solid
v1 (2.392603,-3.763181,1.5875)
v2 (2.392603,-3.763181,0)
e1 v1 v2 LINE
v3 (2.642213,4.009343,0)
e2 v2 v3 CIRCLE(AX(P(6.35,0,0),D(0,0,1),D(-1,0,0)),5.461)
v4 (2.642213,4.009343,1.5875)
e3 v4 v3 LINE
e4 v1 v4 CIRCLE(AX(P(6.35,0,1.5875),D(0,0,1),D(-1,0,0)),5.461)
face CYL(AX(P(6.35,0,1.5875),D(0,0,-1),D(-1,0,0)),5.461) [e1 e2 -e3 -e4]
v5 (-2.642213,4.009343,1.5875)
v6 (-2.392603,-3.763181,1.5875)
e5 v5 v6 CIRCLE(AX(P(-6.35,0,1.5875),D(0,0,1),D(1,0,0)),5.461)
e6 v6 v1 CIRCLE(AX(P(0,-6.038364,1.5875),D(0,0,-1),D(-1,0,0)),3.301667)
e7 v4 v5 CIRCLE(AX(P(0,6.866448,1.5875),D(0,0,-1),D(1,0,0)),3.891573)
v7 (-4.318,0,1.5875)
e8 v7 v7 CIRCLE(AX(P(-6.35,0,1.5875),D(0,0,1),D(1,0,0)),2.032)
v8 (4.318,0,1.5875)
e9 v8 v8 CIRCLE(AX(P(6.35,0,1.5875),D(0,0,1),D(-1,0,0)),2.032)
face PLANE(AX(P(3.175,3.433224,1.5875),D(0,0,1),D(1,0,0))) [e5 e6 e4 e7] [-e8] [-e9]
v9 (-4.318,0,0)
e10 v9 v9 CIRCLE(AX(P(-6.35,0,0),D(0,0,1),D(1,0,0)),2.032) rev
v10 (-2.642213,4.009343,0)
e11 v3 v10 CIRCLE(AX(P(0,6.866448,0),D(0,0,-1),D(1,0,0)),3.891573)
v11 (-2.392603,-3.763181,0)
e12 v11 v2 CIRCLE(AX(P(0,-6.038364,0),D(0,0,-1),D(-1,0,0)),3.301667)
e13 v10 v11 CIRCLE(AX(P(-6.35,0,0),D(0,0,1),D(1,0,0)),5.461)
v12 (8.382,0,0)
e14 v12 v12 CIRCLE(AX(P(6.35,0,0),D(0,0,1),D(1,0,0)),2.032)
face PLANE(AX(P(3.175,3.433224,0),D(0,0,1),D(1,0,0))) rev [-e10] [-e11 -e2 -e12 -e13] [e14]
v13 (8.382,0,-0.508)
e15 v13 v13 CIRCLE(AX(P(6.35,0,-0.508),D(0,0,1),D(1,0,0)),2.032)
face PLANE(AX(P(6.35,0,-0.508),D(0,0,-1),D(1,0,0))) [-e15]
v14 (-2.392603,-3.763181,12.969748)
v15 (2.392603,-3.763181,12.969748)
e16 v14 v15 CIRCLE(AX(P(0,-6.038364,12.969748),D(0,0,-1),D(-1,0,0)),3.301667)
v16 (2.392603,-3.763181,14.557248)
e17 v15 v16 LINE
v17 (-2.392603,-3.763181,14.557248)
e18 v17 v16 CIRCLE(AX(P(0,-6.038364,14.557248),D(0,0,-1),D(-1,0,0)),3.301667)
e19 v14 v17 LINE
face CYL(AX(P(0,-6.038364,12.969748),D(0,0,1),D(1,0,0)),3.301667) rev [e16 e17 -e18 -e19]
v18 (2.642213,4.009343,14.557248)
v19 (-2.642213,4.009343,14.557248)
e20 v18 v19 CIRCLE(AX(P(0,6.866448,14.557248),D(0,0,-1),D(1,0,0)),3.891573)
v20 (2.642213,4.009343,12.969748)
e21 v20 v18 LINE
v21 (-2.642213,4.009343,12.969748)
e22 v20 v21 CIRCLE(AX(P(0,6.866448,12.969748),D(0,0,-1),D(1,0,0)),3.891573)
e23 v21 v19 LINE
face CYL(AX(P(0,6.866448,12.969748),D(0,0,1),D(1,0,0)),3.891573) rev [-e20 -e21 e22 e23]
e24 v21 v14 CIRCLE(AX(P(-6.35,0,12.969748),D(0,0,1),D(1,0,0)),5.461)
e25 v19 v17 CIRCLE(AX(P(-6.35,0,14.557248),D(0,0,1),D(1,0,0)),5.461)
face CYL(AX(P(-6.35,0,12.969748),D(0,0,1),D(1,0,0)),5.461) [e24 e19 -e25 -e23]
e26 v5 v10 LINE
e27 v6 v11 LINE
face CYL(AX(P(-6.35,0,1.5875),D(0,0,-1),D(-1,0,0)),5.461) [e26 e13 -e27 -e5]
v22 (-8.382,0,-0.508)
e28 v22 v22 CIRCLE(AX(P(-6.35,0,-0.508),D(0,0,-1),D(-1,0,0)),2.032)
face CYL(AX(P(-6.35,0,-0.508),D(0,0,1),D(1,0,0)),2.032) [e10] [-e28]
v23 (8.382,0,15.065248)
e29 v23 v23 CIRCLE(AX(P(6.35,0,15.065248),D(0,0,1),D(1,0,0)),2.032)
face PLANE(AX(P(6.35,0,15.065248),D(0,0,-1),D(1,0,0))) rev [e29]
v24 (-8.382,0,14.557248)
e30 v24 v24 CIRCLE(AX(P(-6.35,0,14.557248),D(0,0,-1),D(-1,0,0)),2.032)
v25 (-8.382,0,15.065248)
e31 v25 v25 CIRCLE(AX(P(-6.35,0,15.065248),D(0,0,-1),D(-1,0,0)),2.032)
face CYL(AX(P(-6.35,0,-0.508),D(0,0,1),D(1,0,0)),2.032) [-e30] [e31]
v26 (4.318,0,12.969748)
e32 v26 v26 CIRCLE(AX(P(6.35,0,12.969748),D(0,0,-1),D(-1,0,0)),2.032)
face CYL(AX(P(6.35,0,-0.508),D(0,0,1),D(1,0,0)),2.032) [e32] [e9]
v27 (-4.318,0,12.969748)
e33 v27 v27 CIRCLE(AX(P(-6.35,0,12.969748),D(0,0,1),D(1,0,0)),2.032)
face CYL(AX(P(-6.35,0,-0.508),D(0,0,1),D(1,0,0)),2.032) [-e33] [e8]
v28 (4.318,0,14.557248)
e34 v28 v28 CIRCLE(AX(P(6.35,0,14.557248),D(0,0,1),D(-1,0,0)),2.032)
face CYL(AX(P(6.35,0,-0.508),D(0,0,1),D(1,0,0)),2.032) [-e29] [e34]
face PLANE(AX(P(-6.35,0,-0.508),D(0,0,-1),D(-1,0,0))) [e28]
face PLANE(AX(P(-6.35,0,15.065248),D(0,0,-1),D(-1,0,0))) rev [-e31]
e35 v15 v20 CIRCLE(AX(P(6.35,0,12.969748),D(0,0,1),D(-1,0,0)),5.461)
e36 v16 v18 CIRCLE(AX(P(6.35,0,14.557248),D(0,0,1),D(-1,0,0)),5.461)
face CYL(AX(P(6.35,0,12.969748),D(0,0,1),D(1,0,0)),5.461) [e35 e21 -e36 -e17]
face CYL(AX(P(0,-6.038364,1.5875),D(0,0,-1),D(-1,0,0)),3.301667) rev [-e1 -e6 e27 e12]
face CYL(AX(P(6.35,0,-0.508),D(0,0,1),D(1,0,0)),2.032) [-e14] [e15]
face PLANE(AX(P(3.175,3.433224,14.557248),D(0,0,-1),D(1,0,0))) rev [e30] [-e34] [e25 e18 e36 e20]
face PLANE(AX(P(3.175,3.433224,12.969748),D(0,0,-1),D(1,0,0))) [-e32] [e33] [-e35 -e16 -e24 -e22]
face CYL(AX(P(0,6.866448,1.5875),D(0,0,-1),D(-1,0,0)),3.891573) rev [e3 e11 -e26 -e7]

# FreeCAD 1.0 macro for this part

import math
import FreeCAD as App
import Part
import Sketcher

V = App.Vector
Q = App.Units.Quantity

doc = App.newDocument("Part")
body = doc.addObject("PartDesign::Body", "Body")

# Sketch on XY plane
sketch1 = body.newObject("Sketcher::SketchObject", "Sketch")
sketch1.AttachmentSupport = (doc.getObject("XY_Plane"), [""])
sketch1.MapMode = "FlatFace"
sketch1.addGeometry([
    Part.ArcOfCircle(Part.Circle(V(-6.35, 0, 0), V(0, 0, 1), 5.461), math.radians(47.237762), math.radians(316.441002)),  # 0
    Part.ArcOfCircle(Part.Circle(V(0, -6.038364, 0), V(0, 0, 1), 3.301667), math.radians(43.558998), math.radians(136.441002)),  # 1
    Part.ArcOfCircle(Part.Circle(V(6.35, 0, 0), V(0, 0, 1), 5.461), math.radians(-136.441002), math.radians(132.762238)),  # 2
    Part.ArcOfCircle(Part.Circle(V(0, 6.866448, 0), V(0, 0, 1), 3.891573), math.radians(-132.762238), math.radians(-47.237762)),  # 3
    Part.Circle(V(-6.35, 0, 0), V(0, 0, 1), 2.032),  # 4
    Part.Circle(V(6.35, 0, 0), V(0, 0, 1), 2.032),  # 5
], False)
sketch1.addConstraint([
    Sketcher.Constraint("Tangent", 0, 2, 1, 2),
    Sketcher.Constraint("Tangent", 1, 1, 2, 1),
    Sketcher.Constraint("Tangent", 2, 2, 3, 2),
    Sketcher.Constraint("Tangent", 3, 1, 0, 1),
    Sketcher.Constraint("Coincident", 4, 3, 0, 3),
    Sketcher.Constraint("Coincident", 5, 3, 2, 3),
    Sketcher.Constraint("Equal", 0, 2),
    Sketcher.Constraint("Equal", 4, 5),
    Sketcher.Constraint("Symmetric", 0, 3, 2, 3, -1, 1),
    Sketcher.Constraint("PointOnObject", 0, 3, -1),
    Sketcher.Constraint("Diameter", 4, Q("0.16 in")),
    Sketcher.Constraint("Radius", 0, Q("0.215 in")),
    Sketcher.Constraint("DistanceX", 0, 3, 2, 3, Q("0.5 in")),
    Sketcher.Constraint("Radius", 1, Q("3.301667 mm")),
    Sketcher.Constraint("Radius", 3, Q("3.891573 mm")),
])
pad1 = body.newObject("PartDesign::Pad", "Pad")
pad1.Profile = sketch1
pad1.Length = Q("0.0625 in")

# Sketch on XY plane
sketch2 = body.newObject("Sketcher::SketchObject", "Sketch001")
sketch2.AttachmentSupport = (doc.getObject("XY_Plane"), [""])
sketch2.MapMode = "FlatFace"
sketch2.AttachmentOffset = App.Placement(V(0, 0, 15.065248), App.Rotation())
sketch2.addGeometry(Part.Circle(V(-6.35, 0, 0), V(0, 0, 1), 2.032), False)
sketch2.addConstraint([
    Sketcher.Constraint("PointOnObject", 0, 3, -1),
    Sketcher.Constraint("Diameter", 0, Q("0.16 in")),
    Sketcher.Constraint("DistanceX", 0, 3, -1, 1, Q("0.25 in")),
])
pad2 = body.newObject("PartDesign::Pad", "Pad001")
pad2.Profile = sketch2
pad2.Length = 15.573248
pad2.Reversed = True
doc.recompute()

datumplane = body.newObject("PartDesign::Plane", "DatumPlane")
datumplane.AttachmentSupport = (doc.getObject("XY_Plane"), [""])
datumplane.MapMode = "FlatFace"
datumplane.AttachmentOffset = App.Placement(V(0, 0, 7.278624), App.Rotation())
mirrored = body.newObject("PartDesign::Mirrored", "Mirrored")
mirrored.Originals = [pad1]
mirrored.MirrorPlane = (datumplane, [""])
body.Tip = mirrored
doc.recompute()

mirrored2 = body.newObject("PartDesign::Mirrored", "Mirrored001")
mirrored2.Originals = [pad2]
mirrored2.MirrorPlane = (doc.getObject("YZ_Plane"), [""])
body.Tip = mirrored2

doc.recompute()
